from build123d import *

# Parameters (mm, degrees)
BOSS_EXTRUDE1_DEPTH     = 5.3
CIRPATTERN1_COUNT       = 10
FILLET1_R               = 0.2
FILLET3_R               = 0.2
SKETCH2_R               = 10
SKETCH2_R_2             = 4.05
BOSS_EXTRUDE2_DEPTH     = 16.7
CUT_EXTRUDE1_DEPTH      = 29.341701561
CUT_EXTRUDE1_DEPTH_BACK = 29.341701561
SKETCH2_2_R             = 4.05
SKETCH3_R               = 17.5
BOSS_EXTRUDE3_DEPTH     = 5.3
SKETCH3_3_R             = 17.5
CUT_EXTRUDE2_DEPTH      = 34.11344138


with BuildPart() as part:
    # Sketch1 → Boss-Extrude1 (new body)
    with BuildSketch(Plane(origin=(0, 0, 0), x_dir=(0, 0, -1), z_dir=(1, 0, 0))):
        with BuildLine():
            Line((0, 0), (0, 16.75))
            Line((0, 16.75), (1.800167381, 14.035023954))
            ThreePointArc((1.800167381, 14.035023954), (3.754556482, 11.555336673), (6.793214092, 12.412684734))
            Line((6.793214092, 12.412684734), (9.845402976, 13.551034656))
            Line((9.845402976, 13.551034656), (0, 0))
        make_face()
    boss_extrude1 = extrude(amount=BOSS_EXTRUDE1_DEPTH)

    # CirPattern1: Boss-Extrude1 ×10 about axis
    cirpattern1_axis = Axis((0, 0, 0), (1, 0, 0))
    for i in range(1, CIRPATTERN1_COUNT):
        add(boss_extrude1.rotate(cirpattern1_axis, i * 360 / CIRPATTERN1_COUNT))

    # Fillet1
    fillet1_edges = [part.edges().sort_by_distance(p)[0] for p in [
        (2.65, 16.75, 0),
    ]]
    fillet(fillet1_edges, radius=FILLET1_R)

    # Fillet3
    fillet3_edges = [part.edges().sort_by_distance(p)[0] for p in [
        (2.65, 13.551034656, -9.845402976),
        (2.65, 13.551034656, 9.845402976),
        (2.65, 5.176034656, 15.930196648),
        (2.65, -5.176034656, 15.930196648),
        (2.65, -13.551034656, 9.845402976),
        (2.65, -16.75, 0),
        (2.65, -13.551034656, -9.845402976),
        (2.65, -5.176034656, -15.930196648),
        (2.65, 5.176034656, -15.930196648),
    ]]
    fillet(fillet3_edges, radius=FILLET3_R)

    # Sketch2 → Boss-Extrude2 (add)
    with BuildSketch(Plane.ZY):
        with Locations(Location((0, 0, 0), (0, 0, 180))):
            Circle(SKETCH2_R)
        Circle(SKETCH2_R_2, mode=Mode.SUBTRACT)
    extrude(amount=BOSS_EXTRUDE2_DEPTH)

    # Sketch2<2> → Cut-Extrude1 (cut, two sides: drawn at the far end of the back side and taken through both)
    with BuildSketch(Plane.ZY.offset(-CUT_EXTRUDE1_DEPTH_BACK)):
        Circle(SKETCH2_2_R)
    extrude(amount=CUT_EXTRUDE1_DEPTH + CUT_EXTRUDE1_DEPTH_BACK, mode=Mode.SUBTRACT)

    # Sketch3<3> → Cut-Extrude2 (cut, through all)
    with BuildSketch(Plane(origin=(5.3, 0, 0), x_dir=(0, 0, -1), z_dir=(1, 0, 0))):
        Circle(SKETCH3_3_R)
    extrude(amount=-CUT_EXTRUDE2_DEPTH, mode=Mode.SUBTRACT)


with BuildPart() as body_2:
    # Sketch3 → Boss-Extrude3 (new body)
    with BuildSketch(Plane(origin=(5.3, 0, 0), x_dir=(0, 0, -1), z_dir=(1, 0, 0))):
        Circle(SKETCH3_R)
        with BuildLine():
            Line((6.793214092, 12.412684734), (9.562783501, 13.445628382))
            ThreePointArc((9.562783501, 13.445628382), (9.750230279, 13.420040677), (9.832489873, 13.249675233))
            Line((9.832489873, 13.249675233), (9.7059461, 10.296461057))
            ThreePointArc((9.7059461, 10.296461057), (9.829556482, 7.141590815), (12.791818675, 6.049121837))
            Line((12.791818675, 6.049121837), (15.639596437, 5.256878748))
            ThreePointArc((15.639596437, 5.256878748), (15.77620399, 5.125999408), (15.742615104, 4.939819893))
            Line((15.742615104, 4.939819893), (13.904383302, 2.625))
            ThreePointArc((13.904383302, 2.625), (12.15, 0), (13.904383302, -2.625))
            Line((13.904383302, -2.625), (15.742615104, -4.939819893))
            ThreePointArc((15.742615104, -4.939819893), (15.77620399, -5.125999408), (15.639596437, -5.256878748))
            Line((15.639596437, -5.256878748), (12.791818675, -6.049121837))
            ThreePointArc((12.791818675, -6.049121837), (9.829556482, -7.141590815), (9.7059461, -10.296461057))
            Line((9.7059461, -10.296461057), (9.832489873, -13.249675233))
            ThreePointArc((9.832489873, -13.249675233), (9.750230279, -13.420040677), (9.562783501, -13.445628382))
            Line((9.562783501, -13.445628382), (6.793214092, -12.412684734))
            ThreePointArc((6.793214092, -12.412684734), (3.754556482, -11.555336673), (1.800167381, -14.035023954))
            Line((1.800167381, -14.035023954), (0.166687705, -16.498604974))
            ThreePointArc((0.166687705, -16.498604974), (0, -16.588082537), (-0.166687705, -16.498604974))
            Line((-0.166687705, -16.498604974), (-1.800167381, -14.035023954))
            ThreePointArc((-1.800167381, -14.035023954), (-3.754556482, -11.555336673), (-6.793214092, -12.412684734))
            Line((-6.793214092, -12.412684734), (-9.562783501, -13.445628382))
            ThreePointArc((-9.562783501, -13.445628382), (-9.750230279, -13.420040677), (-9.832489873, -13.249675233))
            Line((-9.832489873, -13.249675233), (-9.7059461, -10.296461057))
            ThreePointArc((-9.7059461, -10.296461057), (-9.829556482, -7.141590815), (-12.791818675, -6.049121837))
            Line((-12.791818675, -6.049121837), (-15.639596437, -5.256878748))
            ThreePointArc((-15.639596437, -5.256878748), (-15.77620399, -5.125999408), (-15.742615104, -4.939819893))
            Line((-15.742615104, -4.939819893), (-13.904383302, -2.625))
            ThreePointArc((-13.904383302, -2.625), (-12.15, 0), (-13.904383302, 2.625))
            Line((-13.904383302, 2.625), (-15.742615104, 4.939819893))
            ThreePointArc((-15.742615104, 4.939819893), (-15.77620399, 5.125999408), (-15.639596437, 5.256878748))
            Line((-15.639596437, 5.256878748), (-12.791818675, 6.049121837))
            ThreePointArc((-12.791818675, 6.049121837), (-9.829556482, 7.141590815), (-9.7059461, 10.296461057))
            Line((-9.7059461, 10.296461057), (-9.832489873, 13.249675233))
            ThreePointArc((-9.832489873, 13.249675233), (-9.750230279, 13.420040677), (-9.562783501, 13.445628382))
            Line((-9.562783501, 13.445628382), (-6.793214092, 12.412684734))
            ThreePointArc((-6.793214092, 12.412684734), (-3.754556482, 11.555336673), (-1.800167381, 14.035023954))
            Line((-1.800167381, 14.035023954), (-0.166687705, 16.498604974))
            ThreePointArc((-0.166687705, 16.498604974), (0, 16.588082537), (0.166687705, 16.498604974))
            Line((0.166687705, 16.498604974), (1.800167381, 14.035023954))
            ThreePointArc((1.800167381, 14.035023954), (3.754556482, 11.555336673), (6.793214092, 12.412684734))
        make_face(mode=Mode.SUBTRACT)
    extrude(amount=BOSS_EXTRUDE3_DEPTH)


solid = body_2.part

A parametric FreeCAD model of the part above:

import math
import FreeCAD as App
import Part
import Sketcher

V = App.Vector
Q = App.Units.Quantity


def edges_at(feature, points):
    """Names of the edges that pass closest to the given points."""
    edges = feature.Shape.Edges
    near = lambda p: min(range(len(edges)), key=lambda i: edges[i].distToShape(Part.Vertex(*p))[0])
    return sorted({f"Edge{near(p) + 1}" for p in points})

doc = App.newDocument("Part")
params = doc.addObject("Spreadsheet::Sheet", "Params")
for row, (alias, value) in enumerate([
    ("sketch1_width", "16.75 mm"),
    ("sketch1_length", "16.75 mm"),
    ("pad1_length", "5.3 mm"),
    ("fillet_radius", "0.2 mm"),
    ("fillet2_radius", "0.2 mm"),
    ("sketch2_diameter", "20 mm"),
    ("sketch2_diameter2", "8.1 mm"),
    ("pad2_length", "16.7 mm"),
    ("sketch3_diameter", "8.1 mm"),
    ("sketch4_diameter", "35 mm"),
    ("sketch5_diameter", "35 mm"),
    ("sketch5_radius", "0.2 mm"),
    ("pad3_length", "5.3 mm"),
], start=1):
    params.set(f"A{row}", alias)
    params.set(f"B{row}", "=" + value)
    params.setAlias(f"B{row}", alias)

body = doc.addObject("PartDesign::Body", "Body")

sketch1 = doc.addObject("Sketcher::SketchObject", "Sketch")
body.addObject(sketch1)
sketch1.AttachmentSupport = (doc.YZ_Plane, [""])
sketch1.MapMode = "FlatFace"
sketch1.addGeometry([
    Part.LineSegment(V(16.75, 0, 0), V(0, 0, 0)),
    Part.LineSegment(V(0, 0, 0), V(13.551035, -9.845403, 0)),
    Part.LineSegment(V(13.551035, -9.845403, 0), V(12.412685, -6.793214, 0)),
    Part.ArcOfCircle(Part.Circle(V(14.25731, -4.632481, 0), V(0, 0, 1), 2.841023), math.radians(94.487495), math.radians(229.512505)),
    Part.LineSegment(V(14.035024, -1.800167, 0), V(16.75, 0, 0)),
], False)
sketch1.addConstraint([
    Sketcher.Constraint("Coincident", 0, 2, 1, 1),
    Sketcher.Constraint("Coincident", 1, 2, 2, 1),
    Sketcher.Constraint("Coincident", 2, 2, 3, 2),
    Sketcher.Constraint("Coincident", 3, 1, 4, 1),
    Sketcher.Constraint("Coincident", 4, 2, 0, 1),
    Sketcher.Constraint("Horizontal", 0),
    Sketcher.Constraint("Coincident", 0, 2, -1, 1),
    Sketcher.Constraint("Equal", 2, 4),
    Sketcher.Constraint("Angle", 1, Q("-36 deg")),
    Sketcher.Constraint("DistanceX", 0, 2, 0, 1, Q("16.75 mm")),
    Sketcher.Constraint("Distance", 1, Q("16.75 mm")),
    Sketcher.Constraint("Radius", 3, Q("2.841023 mm")),
    Sketcher.Constraint("Distance", 2, Q("3.25756 mm")),
    Sketcher.Constraint("DistanceX", -1, 1, 3, 3, Q("14.25731 mm")),
    Sketcher.Constraint("DistanceY", 3, 3, -1, 1, Q("4.632481 mm")),
])
sketch1.setExpression("Constraints[9]", "Params.sketch1_width")
sketch1.setExpression("Constraints[10]", "Params.sketch1_length")
pad1 = doc.addObject("PartDesign::Pad", "Pad")
body.addObject(pad1)
pad1.Profile = sketch1
pad1.setExpression("Length", "Params.pad1_length")
doc.recompute()

polarpattern = doc.addObject("PartDesign::PolarPattern", "PolarPattern")
body.addObject(polarpattern)
polarpattern.Originals = [pad1]
polarpattern.Axis = (doc.X_Axis, [""])
polarpattern.Angle = 360
polarpattern.Occurrences = 10
body.Tip = polarpattern
doc.recompute()

fillet = doc.addObject("PartDesign::Fillet", "Fillet")
body.addObject(fillet)
fillet.Base = (polarpattern, edges_at(polarpattern, [(2.65, 16.75, 0)]))
fillet.setExpression("Radius", "Params.fillet_radius")
doc.recompute()

fillet2 = doc.addObject("PartDesign::Fillet", "Fillet001")
body.addObject(fillet2)
fillet2.Base = (fillet, edges_at(fillet, [
    (2.65, 13.551, -9.845),
    (2.65, 13.551, 9.845),
    (2.65, 5.176, 15.93),
    (2.65, -5.176, 15.93),
    (2.65, -13.551, 9.845),
    (2.65, -16.75, 0),
    (2.65, -13.551, -9.845),
    (2.65, -5.176, -15.93),
    (2.65, 5.176, -15.93),
]))
fillet2.setExpression("Radius", "Params.fillet2_radius")

sketch2 = doc.addObject("Sketcher::SketchObject", "Sketch001")
body.addObject(sketch2)
sketch2.AttachmentSupport = (doc.YZ_Plane, [""])
sketch2.MapMode = "FlatFace"
sketch2.addGeometry([
    Part.Circle(V(0, 0, 0), V(0, 0, 1), 10),
    Part.Circle(V(0, 0, 0), V(0, 0, 1), 4.05),
], False)
sketch2.addConstraint([
    Sketcher.Constraint("Coincident", 0, 3, -1, 1),
    Sketcher.Constraint("Coincident", 1, 3, -1, 1),
    Sketcher.Constraint("Diameter", 0, Q("20 mm")),
    Sketcher.Constraint("Diameter", 1, Q("8.1 mm")),
])
sketch2.setExpression("Constraints[2]", "Params.sketch2_diameter")
sketch2.setExpression("Constraints[3]", "Params.sketch2_diameter2")
pad2 = doc.addObject("PartDesign::Pad", "Pad001")
body.addObject(pad2)
pad2.Profile = sketch2
pad2.setExpression("Length", "Params.pad2_length")
pad2.Reversed = True

sketch3 = doc.addObject("Sketcher::SketchObject", "Sketch002")
body.addObject(sketch3)
sketch3.AttachmentSupport = (doc.YZ_Plane, [""])
sketch3.MapMode = "FlatFace"
sketch3.addGeometry(Part.Circle(V(0, 0, 0), V(0, 0, 1), 4.05), False)
sketch3.addConstraint([
    Sketcher.Constraint("Coincident", 0, 3, -1, 1),
    Sketcher.Constraint("Diameter", 0, Q("8.1 mm")),
])
sketch3.setExpression("Constraints[1]", "Params.sketch3_diameter")
pocket1 = doc.addObject("PartDesign::Pocket", "Pocket")
body.addObject(pocket1)
pocket1.Profile = sketch3
pocket1.Type = "ThroughAll"
pocket1.Midplane = True

sketch4 = doc.addObject("Sketcher::SketchObject", "Sketch003")
body.addObject(sketch4)
sketch4.AttachmentSupport = (doc.YZ_Plane, [""])
sketch4.MapMode = "FlatFace"
sketch4.AttachmentOffset = App.Placement(V(0, 0, 5.3), App.Rotation())
sketch4.addGeometry(Part.Circle(V(0, 0, 0), V(0, 0, 1), 17.5), False)
sketch4.addConstraint([
    Sketcher.Constraint("Coincident", 0, 3, -1, 1),
    Sketcher.Constraint("Diameter", 0, Q("35 mm")),
])
sketch4.setExpression("Constraints[1]", "Params.sketch4_diameter")
pocket2 = doc.addObject("PartDesign::Pocket", "Pocket001")
body.addObject(pocket2)
pocket2.Profile = sketch4
pocket2.Type = "ThroughAll"
body2 = doc.addObject("PartDesign::Body", "Body001")

sketch5 = doc.addObject("Sketcher::SketchObject", "Sketch004")
body2.addObject(sketch5)
sketch5.AttachmentSupport = (doc.getObject("YZ_Plane001"), [""])
sketch5.MapMode = "FlatFace"
sketch5.AttachmentOffset = App.Placement(V(0, 0, 5.3), App.Rotation())
sketch5.addGeometry([
    Part.Circle(V(0, 0, 0), V(0, 0, 1), 17.5),
    Part.ArcOfCircle(Part.Circle(V(14.25731, -4.632481, 0), V(0, 0, 1), 2.841023), math.radians(94.487495), math.radians(229.512505)),
    Part.LineSegment(V(12.412685, -6.793214, 0), V(13.445628, -9.562784, 0)),
    Part.ArcOfCircle(Part.Circle(V(13.258237, -9.632673, 0), V(0, 0, 1), 0.2), math.radians(-92.453595), math.radians(20.453595)),
    Part.LineSegment(V(13.249675, -9.83249, 0), V(10.296461, -9.705946, 0)),
    Part.ArcOfCircle(Part.Circle(V(8.811502, -12.127992, 0), V(0, 0, 1), 2.841023), math.radians(58.487495), math.radians(193.512505)),
    Part.LineSegment(V(6.049122, -12.791819, 0), V(5.256879, -15.639596, 0)),
    Part.ArcOfCircle(Part.Circle(V(5.064196, -15.585993, 0), V(0, 0, 1), 0.2), math.radians(-128.453595), math.radians(-15.546405)),
    Part.LineSegment(V(4.93982, -15.742615, 0), V(2.625, -13.904383, 0)),
    Part.ArcOfCircle(Part.Circle(V(0, -14.991023, 0), V(0, 0, 1), 2.841023), math.radians(22.487495), math.radians(157.512505)),
    Part.LineSegment(V(-2.625, -13.904383, 0), V(-4.93982, -15.742615, 0)),
    Part.ArcOfCircle(Part.Circle(V(-5.064196, -15.585993, 0), V(0, 0, 1), 0.2), math.radians(-164.453595), math.radians(-51.546405)),
    Part.LineSegment(V(-5.256879, -15.639596, 0), V(-6.049122, -12.791819, 0)),
    Part.ArcOfCircle(Part.Circle(V(-8.811502, -12.127992, 0), V(0, 0, 1), 2.841023), math.radians(-13.512505), math.radians(121.512505)),
    Part.LineSegment(V(-10.296461, -9.705946, 0), V(-13.249675, -9.83249, 0)),
    Part.ArcOfCircle(Part.Circle(V(-13.258237, -9.632673, 0), V(0, 0, 1), 0.2), math.radians(159.546405), math.radians(272.453595)),
    Part.LineSegment(V(-13.445628, -9.562784, 0), V(-12.412685, -6.793214, 0)),
    Part.ArcOfCircle(Part.Circle(V(-14.25731, -4.632481, 0), V(0, 0, 1), 2.841023), math.radians(-49.512505), math.radians(85.512505)),
    Part.LineSegment(V(-14.035024, -1.800167, 0), V(-16.498605, -0.166688, 0)),
    Part.ArcOfCircle(Part.Circle(V(-16.388083, 0, 0), V(0, 0, 1), 0.2), math.radians(123.546405), math.radians(236.453595)),
    Part.LineSegment(V(-16.498605, 0.166688, 0), V(-14.035024, 1.800167, 0)),
    Part.ArcOfCircle(Part.Circle(V(-14.25731, 4.632481, 0), V(0, 0, 1), 2.841023), math.radians(-85.512505), math.radians(49.512505)),
    Part.LineSegment(V(-12.412685, 6.793214, 0), V(-13.445628, 9.562784, 0)),
    Part.ArcOfCircle(Part.Circle(V(-13.258237, 9.632673, 0), V(0, 0, 1), 0.2), math.radians(87.546405), math.radians(200.453595)),
    Part.LineSegment(V(-13.249675, 9.83249, 0), V(-10.296461, 9.705946, 0)),
    Part.ArcOfCircle(Part.Circle(V(-8.811502, 12.127992, 0), V(0, 0, 1), 2.841023), math.radians(-121.512505), math.radians(13.512505)),
    Part.LineSegment(V(-6.049122, 12.791819, 0), V(-5.256879, 15.639596, 0)),
    Part.ArcOfCircle(Part.Circle(V(-5.064196, 15.585993, 0), V(0, 0, 1), 0.2), math.radians(51.546405), math.radians(164.453595)),
    Part.LineSegment(V(-4.93982, 15.742615, 0), V(-2.625, 13.904383, 0)),
    Part.ArcOfCircle(Part.Circle(V(0, 14.991023, 0), V(0, 0, 1), 2.841023), math.radians(-157.512505), math.radians(-22.487495)),
    Part.LineSegment(V(2.625, 13.904383, 0), V(4.93982, 15.742615, 0)),
    Part.ArcOfCircle(Part.Circle(V(5.064196, 15.585993, 0), V(0, 0, 1), 0.2), math.radians(15.546405), math.radians(128.453595)),
    Part.LineSegment(V(5.256879, 15.639596, 0), V(6.049122, 12.791819, 0)),
    Part.ArcOfCircle(Part.Circle(V(8.811502, 12.127992, 0), V(0, 0, 1), 2.841023), math.radians(166.487495), math.radians(301.512505)),
    Part.LineSegment(V(10.296461, 9.705946, 0), V(13.249675, 9.83249, 0)),
    Part.ArcOfCircle(Part.Circle(V(13.258237, 9.632673, 0), V(0, 0, 1), 0.2), math.radians(-20.453595), math.radians(92.453595)),
    Part.LineSegment(V(13.445628, 9.562784, 0), V(12.412685, 6.793214, 0)),
    Part.ArcOfCircle(Part.Circle(V(14.25731, 4.632481, 0), V(0, 0, 1), 2.841023), math.radians(130.487495), math.radians(265.512505)),
    Part.LineSegment(V(14.035024, 1.800167, 0), V(16.498605, 0.166688, 0)),
    Part.ArcOfCircle(Part.Circle(V(16.388083, 0, 0), V(0, 0, 1), 0.2), math.radians(-56.453595), math.radians(56.453595)),
    Part.LineSegment(V(16.498605, -0.166688, 0), V(14.035024, -1.800167, 0)),
], False)
sketch5.addConstraint([
    Sketcher.Constraint("Coincident", 1, 2, 2, 1),
    Sketcher.Constraint("Tangent", 2, 2, 3, 2),
    Sketcher.Constraint("Tangent", 3, 1, 4, 1),
    Sketcher.Constraint("Coincident", 4, 2, 5, 1),
    Sketcher.Constraint("Coincident", 5, 2, 6, 1),
    Sketcher.Constraint("Tangent", 6, 2, 7, 2),
    Sketcher.Constraint("Tangent", 7, 1, 8, 1),
    Sketcher.Constraint("Coincident", 8, 2, 9, 1),
    Sketcher.Constraint("Coincident", 9, 2, 10, 1),
    Sketcher.Constraint("Tangent", 10, 2, 11, 2),
    Sketcher.Constraint("Tangent", 11, 1, 12, 1),
    Sketcher.Constraint("Coincident", 12, 2, 13, 1),
    Sketcher.Constraint("Coincident", 13, 2, 14, 1),
    Sketcher.Constraint("Tangent", 14, 2, 15, 2),
    Sketcher.Constraint("Tangent", 15, 1, 16, 1),
    Sketcher.Constraint("Coincident", 16, 2, 17, 1),
    Sketcher.Constraint("Coincident", 17, 2, 18, 1),
    Sketcher.Constraint("Tangent", 18, 2, 19, 2),
    Sketcher.Constraint("Tangent", 19, 1, 20, 1),
    Sketcher.Constraint("Coincident", 20, 2, 21, 1),
    Sketcher.Constraint("Coincident", 21, 2, 22, 1),
    Sketcher.Constraint("Tangent", 22, 2, 23, 2),
    Sketcher.Constraint("Tangent", 23, 1, 24, 1),
    Sketcher.Constraint("Coincident", 24, 2, 25, 1),
    Sketcher.Constraint("Coincident", 25, 2, 26, 1),
    Sketcher.Constraint("Tangent", 26, 2, 27, 2),
    Sketcher.Constraint("Tangent", 27, 1, 28, 1),
    Sketcher.Constraint("Coincident", 28, 2, 29, 1),
    Sketcher.Constraint("Coincident", 29, 2, 30, 1),
    Sketcher.Constraint("Tangent", 30, 2, 31, 2),
    Sketcher.Constraint("Tangent", 31, 1, 32, 1),
    Sketcher.Constraint("Coincident", 32, 2, 33, 1),
    Sketcher.Constraint("Coincident", 33, 2, 34, 1),
    Sketcher.Constraint("Tangent", 34, 2, 35, 2),
    Sketcher.Constraint("Tangent", 35, 1, 36, 1),
    Sketcher.Constraint("Coincident", 36, 2, 37, 1),
    Sketcher.Constraint("Coincident", 37, 2, 38, 1),
    Sketcher.Constraint("Tangent", 38, 2, 39, 2),
    Sketcher.Constraint("Tangent", 39, 1, 40, 1),
    Sketcher.Constraint("Coincident", 40, 2, 1, 1),
    Sketcher.Constraint("Coincident", 0, 3, -1, 1),
    Sketcher.Constraint("Equal", 1, 5),
    Sketcher.Constraint("Equal", 3, 7),
    Sketcher.Constraint("Equal", 5, 9),
    Sketcher.Constraint("Equal", 7, 11),
    Sketcher.Constraint("Equal", 9, 13),
    Sketcher.Constraint("Equal", 11, 15),
    Sketcher.Constraint("Equal", 13, 17),
    Sketcher.Constraint("Equal", 15, 19),
    Sketcher.Constraint("Equal", 17, 21),
    Sketcher.Constraint("Equal", 19, 23),
    Sketcher.Constraint("Equal", 21, 25),
    Sketcher.Constraint("Equal", 23, 27),
    Sketcher.Constraint("Equal", 25, 29),
    Sketcher.Constraint("Equal", 27, 31),
    Sketcher.Constraint("Equal", 29, 33),
    Sketcher.Constraint("Equal", 31, 35),
    Sketcher.Constraint("Equal", 33, 37),
    Sketcher.Constraint("Equal", 35, 39),
    Sketcher.Constraint("Symmetric", 1, 3, 21, 3, -1, 1),
    Sketcher.Constraint("Symmetric", 3, 3, 23, 3, -1, 1),
    Sketcher.Constraint("Symmetric", 5, 3, 25, 3, -1, 1),
    Sketcher.Constraint("Symmetric", 7, 3, 27, 3, -1, 1),
    Sketcher.Constraint("Symmetric", 9, 3, 29, 3, -1, 1),
    Sketcher.Constraint("Symmetric", 11, 3, 31, 3, -1, 1),
    Sketcher.Constraint("Symmetric", 13, 3, 33, 3, -1, 1),
    Sketcher.Constraint("Symmetric", 15, 3, 35, 3, -1, 1),
    Sketcher.Constraint("Symmetric", 17, 3, 37, 3, -1, 1),
    Sketcher.Constraint("Symmetric", 19, 3, 39, 3, -1, 1),
    Sketcher.Constraint("Symmetric", 7, 3, 11, 3, -2),
    Sketcher.Constraint("Symmetric", 5, 3, 13, 3, -2),
    Sketcher.Constraint("Symmetric", 3, 3, 15, 3, -2),
    Sketcher.Constraint("Symmetric", 1, 3, 17, 3, -2),
    Sketcher.Constraint("Symmetric", 8, 2, 9, 2, -2),
    Sketcher.Constraint("Symmetric", 19, 1, 38, 2, -2),
    Sketcher.Constraint("Parallel", 2, 22),
    Sketcher.Constraint("Parallel", 4, 24),
    Sketcher.Constraint("Parallel", 6, 26),
    Sketcher.Constraint("Parallel", 8, 28),
    Sketcher.Constraint("Parallel", 10, 30),
    Sketcher.Constraint("Parallel", 12, 32),
    Sketcher.Constraint("Parallel", 14, 34),
    Sketcher.Constraint("Parallel", 16, 36),
    Sketcher.Constraint("Parallel", 18, 38),
    Sketcher.Constraint("Parallel", 20, 40),
    Sketcher.Constraint("Horizontal", 6, 2, 11, 1),
    Sketcher.Constraint("Horizontal", 4, 2, 13, 2),
    Sketcher.Constraint("Horizontal", 2, 2, 15, 1),
    Sketcher.Constraint("Equal", 2, 4),
    Sketcher.Constraint("Equal", 4, 6),
    Sketcher.Constraint("Equal", 6, 8),
    Sketcher.Constraint("Equal", 16, 18),
    Sketcher.Constraint("Diameter", 0, Q("35 mm")),
    Sketcher.Constraint("Radius", 3, Q("0.2 mm")),
    Sketcher.Constraint("DistanceX", -1, 1, 8, 2, Q("2.625 mm")),
    Sketcher.Constraint("Radius", 1, Q("2.841023 mm")),
    Sketcher.Constraint("DistanceX", -1, 1, 1, 3, Q("14.25731 mm")),
    Sketcher.Constraint("DistanceY", 1, 3, -1, 1, Q("4.632481 mm")),
    Sketcher.Constraint("DistanceX", -1, 1, 2, 2, Q("13.445628 mm")),
    Sketcher.Constraint("DistanceY", 3, 1, -1, 1, Q("9.83249 mm")),
    Sketcher.Constraint("DistanceX", -1, 1, 4, 2, Q("10.296461 mm")),
    Sketcher.Constraint("DistanceX", -1, 1, 5, 2, Q("6.049122 mm")),
    Sketcher.Constraint("DistanceY", 5, 2, -1, 1, Q("12.791819 mm")),
    Sketcher.Constraint("DistanceX", -1, 1, 6, 2, Q("5.256879 mm")),
    Sketcher.Constraint("Distance", 2, Q("2.955924 mm")),
    Sketcher.Constraint("DistanceX", 19, 3, -1, 1, Q("16.388083 mm")),
])
sketch5.setExpression("Constraints[92]", "Params.sketch5_diameter")
sketch5.setExpression("Constraints[93]", "Params.sketch5_radius")
pad3 = doc.addObject("PartDesign::Pad", "Pad002")
body2.addObject(pad3)
pad3.Profile = sketch5
pad3.setExpression("Length", "Params.pad3_length")

doc.recompute()
